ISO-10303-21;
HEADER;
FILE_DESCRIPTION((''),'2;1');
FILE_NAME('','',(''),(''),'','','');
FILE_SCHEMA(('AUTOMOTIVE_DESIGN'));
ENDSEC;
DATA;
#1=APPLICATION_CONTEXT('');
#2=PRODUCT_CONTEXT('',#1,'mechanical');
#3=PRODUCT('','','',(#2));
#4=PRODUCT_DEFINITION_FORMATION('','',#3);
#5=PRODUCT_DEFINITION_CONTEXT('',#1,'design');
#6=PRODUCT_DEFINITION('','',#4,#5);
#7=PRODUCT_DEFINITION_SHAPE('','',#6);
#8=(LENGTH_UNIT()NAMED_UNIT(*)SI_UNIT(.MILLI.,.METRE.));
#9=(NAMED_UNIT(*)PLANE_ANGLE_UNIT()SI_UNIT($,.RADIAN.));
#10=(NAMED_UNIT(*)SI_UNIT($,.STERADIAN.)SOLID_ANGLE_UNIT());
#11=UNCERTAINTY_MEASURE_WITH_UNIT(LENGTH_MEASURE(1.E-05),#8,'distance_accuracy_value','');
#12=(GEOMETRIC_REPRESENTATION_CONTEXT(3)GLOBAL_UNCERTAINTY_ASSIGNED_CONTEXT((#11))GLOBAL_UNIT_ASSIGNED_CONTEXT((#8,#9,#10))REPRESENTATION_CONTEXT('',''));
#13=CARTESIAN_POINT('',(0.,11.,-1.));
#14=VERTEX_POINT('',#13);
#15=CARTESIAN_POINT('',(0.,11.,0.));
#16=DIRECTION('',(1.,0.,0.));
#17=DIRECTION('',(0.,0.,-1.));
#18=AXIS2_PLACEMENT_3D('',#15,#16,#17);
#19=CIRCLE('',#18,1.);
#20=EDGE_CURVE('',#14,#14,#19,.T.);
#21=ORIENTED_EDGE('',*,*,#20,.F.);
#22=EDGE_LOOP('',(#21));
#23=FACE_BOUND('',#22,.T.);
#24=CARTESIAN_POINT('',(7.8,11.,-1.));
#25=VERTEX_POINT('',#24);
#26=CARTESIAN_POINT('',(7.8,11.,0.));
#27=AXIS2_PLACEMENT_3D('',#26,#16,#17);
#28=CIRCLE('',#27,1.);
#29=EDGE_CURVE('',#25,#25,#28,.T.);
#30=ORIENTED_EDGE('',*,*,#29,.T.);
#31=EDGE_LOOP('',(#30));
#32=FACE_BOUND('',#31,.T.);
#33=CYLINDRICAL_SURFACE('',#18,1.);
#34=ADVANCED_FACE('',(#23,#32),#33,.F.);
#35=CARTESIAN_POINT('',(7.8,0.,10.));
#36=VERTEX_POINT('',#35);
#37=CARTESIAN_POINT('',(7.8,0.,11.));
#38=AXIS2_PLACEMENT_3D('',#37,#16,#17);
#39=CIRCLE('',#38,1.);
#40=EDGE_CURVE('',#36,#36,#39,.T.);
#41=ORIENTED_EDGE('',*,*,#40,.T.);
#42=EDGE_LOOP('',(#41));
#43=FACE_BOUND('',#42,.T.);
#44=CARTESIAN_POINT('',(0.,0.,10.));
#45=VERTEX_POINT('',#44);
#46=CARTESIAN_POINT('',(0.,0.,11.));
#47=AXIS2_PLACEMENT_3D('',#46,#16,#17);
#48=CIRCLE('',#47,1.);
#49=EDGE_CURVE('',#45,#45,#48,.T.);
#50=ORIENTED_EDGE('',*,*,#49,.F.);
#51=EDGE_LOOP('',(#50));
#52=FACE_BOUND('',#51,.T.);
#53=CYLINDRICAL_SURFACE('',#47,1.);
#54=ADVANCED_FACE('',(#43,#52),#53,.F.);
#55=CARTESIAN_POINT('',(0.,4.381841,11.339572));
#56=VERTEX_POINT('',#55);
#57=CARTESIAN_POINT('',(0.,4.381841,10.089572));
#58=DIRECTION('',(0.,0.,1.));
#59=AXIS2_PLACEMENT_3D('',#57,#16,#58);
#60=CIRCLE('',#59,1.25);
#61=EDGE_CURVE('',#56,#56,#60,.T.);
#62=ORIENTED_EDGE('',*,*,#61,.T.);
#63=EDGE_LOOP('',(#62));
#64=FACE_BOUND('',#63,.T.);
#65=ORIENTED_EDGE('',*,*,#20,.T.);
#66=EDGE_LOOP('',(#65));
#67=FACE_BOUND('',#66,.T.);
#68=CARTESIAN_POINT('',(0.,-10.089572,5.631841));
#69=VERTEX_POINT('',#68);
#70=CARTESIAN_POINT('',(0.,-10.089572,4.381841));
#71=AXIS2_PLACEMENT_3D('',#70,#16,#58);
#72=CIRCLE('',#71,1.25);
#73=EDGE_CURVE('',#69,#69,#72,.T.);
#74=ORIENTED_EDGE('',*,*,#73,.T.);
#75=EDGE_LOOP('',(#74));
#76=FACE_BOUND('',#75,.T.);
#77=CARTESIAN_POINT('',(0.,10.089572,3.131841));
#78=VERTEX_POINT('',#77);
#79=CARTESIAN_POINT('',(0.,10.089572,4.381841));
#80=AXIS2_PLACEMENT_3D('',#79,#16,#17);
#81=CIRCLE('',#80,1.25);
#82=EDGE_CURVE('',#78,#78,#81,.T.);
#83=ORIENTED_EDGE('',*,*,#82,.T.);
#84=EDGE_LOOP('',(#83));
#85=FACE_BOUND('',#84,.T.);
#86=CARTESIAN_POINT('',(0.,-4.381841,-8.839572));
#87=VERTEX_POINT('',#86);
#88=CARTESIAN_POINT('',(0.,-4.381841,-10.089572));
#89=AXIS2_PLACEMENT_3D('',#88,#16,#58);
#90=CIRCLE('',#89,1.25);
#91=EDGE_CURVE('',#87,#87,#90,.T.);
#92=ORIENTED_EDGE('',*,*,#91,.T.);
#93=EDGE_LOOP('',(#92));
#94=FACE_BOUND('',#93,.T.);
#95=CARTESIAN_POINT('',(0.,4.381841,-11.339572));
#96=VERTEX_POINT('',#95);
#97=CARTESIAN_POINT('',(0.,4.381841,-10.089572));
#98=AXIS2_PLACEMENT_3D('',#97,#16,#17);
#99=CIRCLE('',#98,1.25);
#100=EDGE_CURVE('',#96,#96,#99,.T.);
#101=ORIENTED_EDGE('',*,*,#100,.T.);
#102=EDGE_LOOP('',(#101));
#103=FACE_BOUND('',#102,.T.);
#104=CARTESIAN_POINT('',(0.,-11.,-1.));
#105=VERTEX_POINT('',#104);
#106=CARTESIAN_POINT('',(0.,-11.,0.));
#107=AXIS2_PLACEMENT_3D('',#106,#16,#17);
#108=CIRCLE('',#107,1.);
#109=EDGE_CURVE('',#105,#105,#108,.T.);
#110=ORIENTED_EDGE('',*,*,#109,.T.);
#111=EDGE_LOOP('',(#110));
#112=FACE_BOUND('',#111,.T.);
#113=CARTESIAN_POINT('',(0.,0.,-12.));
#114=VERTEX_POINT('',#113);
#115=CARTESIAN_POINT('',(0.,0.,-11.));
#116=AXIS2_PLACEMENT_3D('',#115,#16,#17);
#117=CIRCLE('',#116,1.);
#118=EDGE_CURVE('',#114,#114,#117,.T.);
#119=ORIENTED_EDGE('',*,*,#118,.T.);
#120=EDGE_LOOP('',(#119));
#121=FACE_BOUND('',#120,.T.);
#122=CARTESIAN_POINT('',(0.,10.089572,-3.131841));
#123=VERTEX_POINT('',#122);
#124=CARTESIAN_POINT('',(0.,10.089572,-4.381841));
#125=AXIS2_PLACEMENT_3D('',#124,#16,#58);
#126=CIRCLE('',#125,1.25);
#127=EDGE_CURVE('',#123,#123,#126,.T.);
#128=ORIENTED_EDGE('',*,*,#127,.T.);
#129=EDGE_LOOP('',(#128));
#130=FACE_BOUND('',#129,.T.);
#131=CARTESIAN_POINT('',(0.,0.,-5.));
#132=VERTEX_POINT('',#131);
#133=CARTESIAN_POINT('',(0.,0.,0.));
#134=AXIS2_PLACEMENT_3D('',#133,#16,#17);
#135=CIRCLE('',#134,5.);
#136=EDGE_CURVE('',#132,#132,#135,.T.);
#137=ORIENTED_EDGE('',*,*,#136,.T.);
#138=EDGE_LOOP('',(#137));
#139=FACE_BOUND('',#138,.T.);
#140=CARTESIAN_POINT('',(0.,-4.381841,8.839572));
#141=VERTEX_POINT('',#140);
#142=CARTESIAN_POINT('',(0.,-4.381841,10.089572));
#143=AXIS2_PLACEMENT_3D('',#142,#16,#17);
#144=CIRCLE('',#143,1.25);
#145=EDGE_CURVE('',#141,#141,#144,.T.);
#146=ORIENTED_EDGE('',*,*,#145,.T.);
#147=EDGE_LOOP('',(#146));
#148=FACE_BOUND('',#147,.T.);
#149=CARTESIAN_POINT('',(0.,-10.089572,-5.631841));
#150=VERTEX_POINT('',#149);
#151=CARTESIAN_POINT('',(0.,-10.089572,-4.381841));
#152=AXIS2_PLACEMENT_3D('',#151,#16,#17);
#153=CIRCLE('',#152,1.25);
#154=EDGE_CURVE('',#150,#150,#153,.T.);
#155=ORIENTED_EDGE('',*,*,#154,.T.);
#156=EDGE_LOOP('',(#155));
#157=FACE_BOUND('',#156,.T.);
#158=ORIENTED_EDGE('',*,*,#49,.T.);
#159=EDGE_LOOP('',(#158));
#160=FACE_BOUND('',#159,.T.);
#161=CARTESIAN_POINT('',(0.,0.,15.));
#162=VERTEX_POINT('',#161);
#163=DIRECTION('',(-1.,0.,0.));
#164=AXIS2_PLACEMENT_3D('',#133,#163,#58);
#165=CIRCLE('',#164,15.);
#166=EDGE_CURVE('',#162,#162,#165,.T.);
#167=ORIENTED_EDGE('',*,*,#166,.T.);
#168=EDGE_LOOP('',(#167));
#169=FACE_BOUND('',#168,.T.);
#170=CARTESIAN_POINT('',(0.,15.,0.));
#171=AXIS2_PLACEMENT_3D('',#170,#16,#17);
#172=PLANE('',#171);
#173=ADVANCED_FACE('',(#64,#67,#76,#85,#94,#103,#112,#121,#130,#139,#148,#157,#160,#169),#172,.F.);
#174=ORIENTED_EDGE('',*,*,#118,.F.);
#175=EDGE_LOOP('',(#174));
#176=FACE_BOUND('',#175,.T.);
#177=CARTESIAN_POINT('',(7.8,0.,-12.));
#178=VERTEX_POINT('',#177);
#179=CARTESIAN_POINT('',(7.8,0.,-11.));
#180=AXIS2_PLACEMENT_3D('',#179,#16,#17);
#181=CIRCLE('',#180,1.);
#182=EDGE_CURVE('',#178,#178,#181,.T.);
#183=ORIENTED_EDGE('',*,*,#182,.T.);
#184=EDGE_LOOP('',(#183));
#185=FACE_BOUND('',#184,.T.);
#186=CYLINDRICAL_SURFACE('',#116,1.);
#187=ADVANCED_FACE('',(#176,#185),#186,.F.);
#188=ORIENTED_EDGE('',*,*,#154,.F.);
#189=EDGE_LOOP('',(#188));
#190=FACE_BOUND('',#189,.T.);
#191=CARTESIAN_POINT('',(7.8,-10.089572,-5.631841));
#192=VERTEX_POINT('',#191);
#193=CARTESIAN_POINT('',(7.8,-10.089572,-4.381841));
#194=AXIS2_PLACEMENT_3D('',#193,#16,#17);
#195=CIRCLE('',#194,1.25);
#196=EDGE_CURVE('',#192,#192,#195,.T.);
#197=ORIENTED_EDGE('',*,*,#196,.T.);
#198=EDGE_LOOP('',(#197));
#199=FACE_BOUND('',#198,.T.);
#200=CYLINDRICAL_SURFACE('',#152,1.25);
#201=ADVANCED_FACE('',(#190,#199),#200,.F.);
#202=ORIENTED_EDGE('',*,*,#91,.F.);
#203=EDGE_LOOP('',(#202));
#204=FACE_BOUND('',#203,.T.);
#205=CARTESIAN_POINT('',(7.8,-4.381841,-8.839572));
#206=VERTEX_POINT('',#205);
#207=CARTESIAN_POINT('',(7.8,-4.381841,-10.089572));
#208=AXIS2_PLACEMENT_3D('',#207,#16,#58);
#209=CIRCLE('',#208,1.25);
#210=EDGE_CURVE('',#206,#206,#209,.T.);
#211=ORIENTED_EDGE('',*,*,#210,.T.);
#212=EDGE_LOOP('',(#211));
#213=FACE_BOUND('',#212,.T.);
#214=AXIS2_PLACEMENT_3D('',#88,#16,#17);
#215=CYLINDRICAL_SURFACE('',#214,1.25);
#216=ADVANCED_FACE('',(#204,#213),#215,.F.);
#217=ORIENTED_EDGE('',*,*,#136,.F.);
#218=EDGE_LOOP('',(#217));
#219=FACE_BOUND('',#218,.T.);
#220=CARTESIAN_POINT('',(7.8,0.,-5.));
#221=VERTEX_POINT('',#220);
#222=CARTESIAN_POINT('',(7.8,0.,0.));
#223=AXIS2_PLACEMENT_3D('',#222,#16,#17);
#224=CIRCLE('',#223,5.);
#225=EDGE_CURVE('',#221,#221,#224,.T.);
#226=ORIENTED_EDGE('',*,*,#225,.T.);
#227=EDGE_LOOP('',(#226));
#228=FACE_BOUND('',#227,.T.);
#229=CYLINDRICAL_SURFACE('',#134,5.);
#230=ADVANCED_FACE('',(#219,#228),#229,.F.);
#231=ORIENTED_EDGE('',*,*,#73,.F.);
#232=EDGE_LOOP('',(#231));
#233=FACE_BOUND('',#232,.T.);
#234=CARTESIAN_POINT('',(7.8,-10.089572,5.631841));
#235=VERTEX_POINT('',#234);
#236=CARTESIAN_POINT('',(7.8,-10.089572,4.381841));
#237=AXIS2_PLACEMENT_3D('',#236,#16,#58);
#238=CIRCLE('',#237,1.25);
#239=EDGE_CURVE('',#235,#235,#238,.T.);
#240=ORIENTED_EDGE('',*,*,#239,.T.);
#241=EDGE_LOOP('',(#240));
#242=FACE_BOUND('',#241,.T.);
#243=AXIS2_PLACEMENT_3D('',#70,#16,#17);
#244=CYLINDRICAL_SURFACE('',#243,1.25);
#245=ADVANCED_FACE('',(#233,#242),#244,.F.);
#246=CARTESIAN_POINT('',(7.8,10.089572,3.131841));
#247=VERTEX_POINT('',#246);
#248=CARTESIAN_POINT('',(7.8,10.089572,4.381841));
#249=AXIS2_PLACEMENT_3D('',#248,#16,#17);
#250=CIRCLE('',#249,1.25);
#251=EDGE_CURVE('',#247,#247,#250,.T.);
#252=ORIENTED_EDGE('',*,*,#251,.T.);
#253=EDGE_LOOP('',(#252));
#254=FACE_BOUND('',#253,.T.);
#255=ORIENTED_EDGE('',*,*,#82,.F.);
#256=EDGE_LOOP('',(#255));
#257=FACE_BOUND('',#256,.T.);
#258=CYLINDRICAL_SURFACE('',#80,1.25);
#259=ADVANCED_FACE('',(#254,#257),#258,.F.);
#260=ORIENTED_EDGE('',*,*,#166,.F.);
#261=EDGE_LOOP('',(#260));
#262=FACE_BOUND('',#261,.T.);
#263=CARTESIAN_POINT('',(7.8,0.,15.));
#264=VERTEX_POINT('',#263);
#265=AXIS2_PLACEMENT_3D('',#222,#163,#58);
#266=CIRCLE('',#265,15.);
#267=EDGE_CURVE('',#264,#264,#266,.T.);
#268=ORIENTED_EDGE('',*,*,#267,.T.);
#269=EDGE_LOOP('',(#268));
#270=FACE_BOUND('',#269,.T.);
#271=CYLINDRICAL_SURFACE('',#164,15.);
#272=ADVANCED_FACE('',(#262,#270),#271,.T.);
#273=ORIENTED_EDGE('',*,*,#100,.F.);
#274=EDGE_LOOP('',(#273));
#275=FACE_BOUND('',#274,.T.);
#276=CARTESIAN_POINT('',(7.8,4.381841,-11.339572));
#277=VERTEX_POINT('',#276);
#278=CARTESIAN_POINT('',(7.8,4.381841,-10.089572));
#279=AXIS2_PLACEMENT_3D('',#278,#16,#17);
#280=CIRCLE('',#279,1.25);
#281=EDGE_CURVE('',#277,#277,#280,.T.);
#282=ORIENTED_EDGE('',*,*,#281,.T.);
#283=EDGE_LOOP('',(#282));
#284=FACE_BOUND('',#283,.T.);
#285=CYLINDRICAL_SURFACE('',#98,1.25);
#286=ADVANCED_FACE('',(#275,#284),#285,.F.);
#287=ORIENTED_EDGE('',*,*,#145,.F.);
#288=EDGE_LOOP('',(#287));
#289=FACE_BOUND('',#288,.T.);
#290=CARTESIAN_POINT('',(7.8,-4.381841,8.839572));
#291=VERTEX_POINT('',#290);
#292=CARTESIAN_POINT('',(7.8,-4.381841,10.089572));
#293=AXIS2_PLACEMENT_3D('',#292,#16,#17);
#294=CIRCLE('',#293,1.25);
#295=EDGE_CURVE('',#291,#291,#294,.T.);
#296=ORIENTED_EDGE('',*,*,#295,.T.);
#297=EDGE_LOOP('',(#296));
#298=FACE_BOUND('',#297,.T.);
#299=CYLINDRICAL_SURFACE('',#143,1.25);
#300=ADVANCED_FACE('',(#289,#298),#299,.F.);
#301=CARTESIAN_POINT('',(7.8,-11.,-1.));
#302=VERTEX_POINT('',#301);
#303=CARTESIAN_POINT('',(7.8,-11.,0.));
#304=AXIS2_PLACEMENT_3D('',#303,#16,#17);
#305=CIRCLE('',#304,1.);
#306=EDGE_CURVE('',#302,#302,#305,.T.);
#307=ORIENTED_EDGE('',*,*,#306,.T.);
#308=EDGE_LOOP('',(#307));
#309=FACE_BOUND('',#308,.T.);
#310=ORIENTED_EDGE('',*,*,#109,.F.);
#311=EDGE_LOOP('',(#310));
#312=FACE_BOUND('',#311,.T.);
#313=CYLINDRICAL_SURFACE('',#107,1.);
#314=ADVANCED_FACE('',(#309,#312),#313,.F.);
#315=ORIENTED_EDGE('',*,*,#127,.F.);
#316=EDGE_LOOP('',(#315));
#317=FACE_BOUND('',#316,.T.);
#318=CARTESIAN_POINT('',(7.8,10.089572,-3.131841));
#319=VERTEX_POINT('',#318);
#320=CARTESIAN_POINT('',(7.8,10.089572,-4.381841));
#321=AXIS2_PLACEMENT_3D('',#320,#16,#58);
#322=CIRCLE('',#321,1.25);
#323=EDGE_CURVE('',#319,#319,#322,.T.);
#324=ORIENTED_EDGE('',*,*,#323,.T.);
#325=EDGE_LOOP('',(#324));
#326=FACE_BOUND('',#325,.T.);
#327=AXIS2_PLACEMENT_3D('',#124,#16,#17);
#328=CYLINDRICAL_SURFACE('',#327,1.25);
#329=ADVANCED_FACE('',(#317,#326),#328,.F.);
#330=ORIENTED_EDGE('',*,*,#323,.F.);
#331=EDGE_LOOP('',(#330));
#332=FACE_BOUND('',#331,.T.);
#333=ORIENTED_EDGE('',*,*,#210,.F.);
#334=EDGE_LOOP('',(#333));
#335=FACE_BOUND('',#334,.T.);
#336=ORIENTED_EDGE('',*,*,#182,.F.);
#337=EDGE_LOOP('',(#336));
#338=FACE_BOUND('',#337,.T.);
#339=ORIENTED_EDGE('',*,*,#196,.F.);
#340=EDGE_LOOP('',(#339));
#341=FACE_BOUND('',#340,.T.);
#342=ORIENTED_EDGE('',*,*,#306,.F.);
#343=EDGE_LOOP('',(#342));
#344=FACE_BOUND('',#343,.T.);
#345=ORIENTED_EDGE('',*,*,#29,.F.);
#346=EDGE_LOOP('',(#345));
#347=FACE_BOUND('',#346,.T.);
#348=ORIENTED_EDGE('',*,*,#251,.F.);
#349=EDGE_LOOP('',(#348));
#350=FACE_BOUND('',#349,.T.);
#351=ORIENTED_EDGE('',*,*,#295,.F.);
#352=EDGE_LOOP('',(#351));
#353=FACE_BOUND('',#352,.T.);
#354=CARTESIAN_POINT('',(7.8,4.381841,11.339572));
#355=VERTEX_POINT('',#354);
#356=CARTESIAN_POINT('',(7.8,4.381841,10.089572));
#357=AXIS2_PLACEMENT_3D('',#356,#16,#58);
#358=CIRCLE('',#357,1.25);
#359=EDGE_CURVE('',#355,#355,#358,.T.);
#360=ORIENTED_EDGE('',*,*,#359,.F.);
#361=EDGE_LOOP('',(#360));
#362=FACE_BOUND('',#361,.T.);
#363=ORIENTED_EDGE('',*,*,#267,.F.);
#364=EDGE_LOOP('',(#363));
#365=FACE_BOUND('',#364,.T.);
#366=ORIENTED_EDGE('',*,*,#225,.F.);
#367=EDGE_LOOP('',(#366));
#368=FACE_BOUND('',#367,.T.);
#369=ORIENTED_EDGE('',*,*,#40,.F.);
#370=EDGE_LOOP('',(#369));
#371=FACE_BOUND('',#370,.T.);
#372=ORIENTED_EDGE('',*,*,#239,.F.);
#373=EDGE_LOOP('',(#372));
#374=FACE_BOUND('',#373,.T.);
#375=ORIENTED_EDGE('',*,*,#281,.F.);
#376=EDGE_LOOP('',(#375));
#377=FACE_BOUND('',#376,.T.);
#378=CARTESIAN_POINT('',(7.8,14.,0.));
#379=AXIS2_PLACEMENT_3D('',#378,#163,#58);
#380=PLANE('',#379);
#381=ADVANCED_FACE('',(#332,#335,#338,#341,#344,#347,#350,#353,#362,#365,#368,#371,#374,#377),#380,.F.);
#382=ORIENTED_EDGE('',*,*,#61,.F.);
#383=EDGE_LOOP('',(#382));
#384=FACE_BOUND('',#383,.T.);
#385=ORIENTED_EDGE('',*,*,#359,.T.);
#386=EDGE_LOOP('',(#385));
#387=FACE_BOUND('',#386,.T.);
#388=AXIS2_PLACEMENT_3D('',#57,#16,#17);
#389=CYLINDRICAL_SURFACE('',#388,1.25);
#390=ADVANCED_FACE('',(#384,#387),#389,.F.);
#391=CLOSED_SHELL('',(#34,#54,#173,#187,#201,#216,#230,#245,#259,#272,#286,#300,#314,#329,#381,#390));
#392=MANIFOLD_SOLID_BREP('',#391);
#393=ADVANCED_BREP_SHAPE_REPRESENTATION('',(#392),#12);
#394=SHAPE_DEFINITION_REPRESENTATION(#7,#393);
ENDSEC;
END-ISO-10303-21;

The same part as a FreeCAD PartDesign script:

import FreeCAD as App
import Part
import Sketcher


def add_polygon(sketch, points):
    """Adds a closed chain of lines whose ends are joined by coincident constraints."""
    first, n = sketch.GeometryCount, len(points)
    for a, b in zip(points, points[1:] + points[:1]):
        sketch.addGeometry(Part.LineSegment(App.Vector(*a, 0), App.Vector(*b, 0)), False)
    for i in range(n):
        sketch.addConstraint(Sketcher.Constraint("Coincident", first + i, 2, first + (i + 1) % n, 1))

doc = App.newDocument("Part")
params = doc.addObject("Spreadsheet::Sheet", "Params")
for row, (alias, value) in enumerate([
    ("sketch1_height", "15 mm"),
    ("sketch1_width", "7.8 mm"),
    ("revolution_angle", "360 deg"),
    ("sketch2_diameter", "2 mm"),
    ("sketch2_diameter2", "2.5 mm"),
    ("sketch3_diameter", "10 mm"),
], start=1):
    params.set(f"A{row}", alias)
    params.set(f"B{row}", "=" + value)
    params.setAlias(f"B{row}", alias)

body = doc.addObject("PartDesign::Body", "Body")

sketch1 = body.newObject("Sketcher::SketchObject", "Sketch")
sketch1.AttachmentSupport = (doc.getObject("XY_Plane"), [""])
sketch1.MapMode = "FlatFace"
add_polygon(sketch1, [(0, 15), (0, 0), (7.8, 0), (7.8, 15)])
sketch1.addConstraint(Sketcher.Constraint("Vertical", 0))
sketch1.addConstraint(Sketcher.Constraint("Horizontal", 1))
sketch1.addConstraint(Sketcher.Constraint("Vertical", 2))
sketch1.addConstraint(Sketcher.Constraint("Horizontal", 3))
sketch1.addConstraint(Sketcher.Constraint("Coincident", 0, 2, -1, 1))
sketch1.addConstraint(Sketcher.Constraint("DistanceY", 0, 2, 0, 1, 15.0))
sketch1.addConstraint(Sketcher.Constraint("DistanceX", 1, 1, 1, 2, 7.8))
sketch1.setExpression("Constraints[9]", "Params.sketch1_height")
sketch1.setExpression("Constraints[10]", "Params.sketch1_width")
revolution = body.newObject("PartDesign::Revolution", "Revolution")
revolution.Profile = sketch1
revolution.ReferenceAxis = (sketch1, ["H_Axis"])
revolution.setExpression("Angle", "Params.revolution_angle")

sketch2 = body.newObject("Sketcher::SketchObject", "Sketch001")
sketch2.AttachmentSupport = (doc.getObject("YZ_Plane"), [""])
sketch2.MapMode = "FlatFace"
sketch2.AttachmentOffset = App.Placement(App.Vector(0, 0, 7.8), App.Rotation())
sketch2.addGeometry(Part.Circle(App.Vector(11, 0, 0), App.Vector(0, 0, 1), 1), False)
sketch2.addGeometry(Part.Circle(App.Vector(10.089572, 4.381841, 0), App.Vector(0, 0, 1), 1.25), False)
sketch2.addGeometry(Part.Circle(App.Vector(10.089572, -4.381841, 0), App.Vector(0, 0, 1), 1.25), False)
sketch2.addGeometry(Part.Circle(App.Vector(-4.381841, -10.089572, 0), App.Vector(0, 0, 1), 1.25), False)
sketch2.addGeometry(Part.Circle(App.Vector(0, -11, 0), App.Vector(0, 0, 1), 1), False)
sketch2.addGeometry(Part.Circle(App.Vector(4.381841, -10.089572, 0), App.Vector(0, 0, 1), 1.25), False)
sketch2.addGeometry(Part.Circle(App.Vector(-10.089572, 4.381841, 0), App.Vector(0, 0, 1), 1.25), False)
sketch2.addGeometry(Part.Circle(App.Vector(-11, 0, 0), App.Vector(0, 0, 1), 1), False)
sketch2.addGeometry(Part.Circle(App.Vector(-10.089572, -4.381841, 0), App.Vector(0, 0, 1), 1.25), False)
sketch2.addGeometry(Part.Circle(App.Vector(4.381841, 10.089572, 0), App.Vector(0, 0, 1), 1.25), False)
sketch2.addGeometry(Part.Circle(App.Vector(0, 11, 0), App.Vector(0, 0, 1), 1), False)
sketch2.addGeometry(Part.Circle(App.Vector(-4.381841, 10.089572, 0), App.Vector(0, 0, 1), 1.25), False)
sketch2.addConstraint(Sketcher.Constraint("Equal", 1, 2))
sketch2.addConstraint(Sketcher.Constraint("Equal", 2, 3))
sketch2.addConstraint(Sketcher.Constraint("Equal", 0, 4))
sketch2.addConstraint(Sketcher.Constraint("Equal", 3, 5))
sketch2.addConstraint(Sketcher.Constraint("Equal", 5, 6))
sketch2.addConstraint(Sketcher.Constraint("Equal", 4, 7))
sketch2.addConstraint(Sketcher.Constraint("Equal", 6, 8))
sketch2.addConstraint(Sketcher.Constraint("Equal", 8, 9))
sketch2.addConstraint(Sketcher.Constraint("Equal", 7, 10))
sketch2.addConstraint(Sketcher.Constraint("Equal", 9, 11))
sketch2.addConstraint(Sketcher.Constraint("Symmetric", 2, 3, 6, 3, -1, 1))
sketch2.addConstraint(Sketcher.Constraint("Symmetric", 0, 3, 7, 3, -1, 1))
sketch2.addConstraint(Sketcher.Constraint("Symmetric", 1, 3, 8, 3, -1, 1))
sketch2.addConstraint(Sketcher.Constraint("Symmetric", 3, 3, 9, 3, -1, 1))
sketch2.addConstraint(Sketcher.Constraint("Symmetric", 4, 3, 10, 3, -1, 1))
sketch2.addConstraint(Sketcher.Constraint("Symmetric", 5, 3, 11, 3, -1, 1))
sketch2.addConstraint(Sketcher.Constraint("Symmetric", 3, 3, 5, 3, -2))
sketch2.addConstraint(Sketcher.Constraint("Symmetric", 1, 3, 6, 3, -2))
sketch2.addConstraint(Sketcher.Constraint("PointOnObject", 0, 3, -1))
sketch2.addConstraint(Sketcher.Constraint("PointOnObject", 4, 3, -2))
sketch2.addConstraint(Sketcher.Constraint("Diameter", 0, 2.0))
sketch2.addConstraint(Sketcher.Constraint("Diameter", 1, 2.5))
sketch2.addConstraint(Sketcher.Constraint("DistanceX", -1, 1, 0, 3, 11.0))
sketch2.addConstraint(Sketcher.Constraint("DistanceY", 4, 3, -1, 1, 11.0))
sketch2.addConstraint(Sketcher.Constraint("DistanceY", -1, 1, 1, 3, 4.381841))
sketch2.addConstraint(Sketcher.Constraint("DistanceX", 3, 3, -1, 1, 4.381841))
sketch2.addConstraint(Sketcher.Constraint("DistanceY", 3, 3, 2, 3, 5.707731))
sketch2.addConstraint(Sketcher.Constraint("DistanceX", 5, 3, 2, 3, 5.707731))
sketch2.setExpression("Constraints[20]", "Params.sketch2_diameter")
sketch2.setExpression("Constraints[21]", "Params.sketch2_diameter2")
pocket1 = body.newObject("PartDesign::Pocket", "Pocket")
pocket1.Profile = sketch2
pocket1.Type = "ThroughAll"

sketch3 = body.newObject("Sketcher::SketchObject", "Sketch002")
sketch3.AttachmentSupport = (doc.getObject("YZ_Plane"), [""])
sketch3.MapMode = "FlatFace"
sketch3.AttachmentOffset = App.Placement(App.Vector(0, 0, 7.8), App.Rotation())
sketch3.addGeometry(Part.Circle(App.Vector(0, 0, 0), App.Vector(0, 0, 1), 5), False)
sketch3.addConstraint(Sketcher.Constraint("Coincident", 0, 3, -1, 1))
sketch3.addConstraint(Sketcher.Constraint("Diameter", 0, 10.0))
sketch3.setExpression("Constraints[1]", "Params.sketch3_diameter")
pocket2 = body.newObject("PartDesign::Pocket", "Pocket001")
pocket2.Profile = sketch3
pocket2.Type = "ThroughAll"

doc.recompute()
